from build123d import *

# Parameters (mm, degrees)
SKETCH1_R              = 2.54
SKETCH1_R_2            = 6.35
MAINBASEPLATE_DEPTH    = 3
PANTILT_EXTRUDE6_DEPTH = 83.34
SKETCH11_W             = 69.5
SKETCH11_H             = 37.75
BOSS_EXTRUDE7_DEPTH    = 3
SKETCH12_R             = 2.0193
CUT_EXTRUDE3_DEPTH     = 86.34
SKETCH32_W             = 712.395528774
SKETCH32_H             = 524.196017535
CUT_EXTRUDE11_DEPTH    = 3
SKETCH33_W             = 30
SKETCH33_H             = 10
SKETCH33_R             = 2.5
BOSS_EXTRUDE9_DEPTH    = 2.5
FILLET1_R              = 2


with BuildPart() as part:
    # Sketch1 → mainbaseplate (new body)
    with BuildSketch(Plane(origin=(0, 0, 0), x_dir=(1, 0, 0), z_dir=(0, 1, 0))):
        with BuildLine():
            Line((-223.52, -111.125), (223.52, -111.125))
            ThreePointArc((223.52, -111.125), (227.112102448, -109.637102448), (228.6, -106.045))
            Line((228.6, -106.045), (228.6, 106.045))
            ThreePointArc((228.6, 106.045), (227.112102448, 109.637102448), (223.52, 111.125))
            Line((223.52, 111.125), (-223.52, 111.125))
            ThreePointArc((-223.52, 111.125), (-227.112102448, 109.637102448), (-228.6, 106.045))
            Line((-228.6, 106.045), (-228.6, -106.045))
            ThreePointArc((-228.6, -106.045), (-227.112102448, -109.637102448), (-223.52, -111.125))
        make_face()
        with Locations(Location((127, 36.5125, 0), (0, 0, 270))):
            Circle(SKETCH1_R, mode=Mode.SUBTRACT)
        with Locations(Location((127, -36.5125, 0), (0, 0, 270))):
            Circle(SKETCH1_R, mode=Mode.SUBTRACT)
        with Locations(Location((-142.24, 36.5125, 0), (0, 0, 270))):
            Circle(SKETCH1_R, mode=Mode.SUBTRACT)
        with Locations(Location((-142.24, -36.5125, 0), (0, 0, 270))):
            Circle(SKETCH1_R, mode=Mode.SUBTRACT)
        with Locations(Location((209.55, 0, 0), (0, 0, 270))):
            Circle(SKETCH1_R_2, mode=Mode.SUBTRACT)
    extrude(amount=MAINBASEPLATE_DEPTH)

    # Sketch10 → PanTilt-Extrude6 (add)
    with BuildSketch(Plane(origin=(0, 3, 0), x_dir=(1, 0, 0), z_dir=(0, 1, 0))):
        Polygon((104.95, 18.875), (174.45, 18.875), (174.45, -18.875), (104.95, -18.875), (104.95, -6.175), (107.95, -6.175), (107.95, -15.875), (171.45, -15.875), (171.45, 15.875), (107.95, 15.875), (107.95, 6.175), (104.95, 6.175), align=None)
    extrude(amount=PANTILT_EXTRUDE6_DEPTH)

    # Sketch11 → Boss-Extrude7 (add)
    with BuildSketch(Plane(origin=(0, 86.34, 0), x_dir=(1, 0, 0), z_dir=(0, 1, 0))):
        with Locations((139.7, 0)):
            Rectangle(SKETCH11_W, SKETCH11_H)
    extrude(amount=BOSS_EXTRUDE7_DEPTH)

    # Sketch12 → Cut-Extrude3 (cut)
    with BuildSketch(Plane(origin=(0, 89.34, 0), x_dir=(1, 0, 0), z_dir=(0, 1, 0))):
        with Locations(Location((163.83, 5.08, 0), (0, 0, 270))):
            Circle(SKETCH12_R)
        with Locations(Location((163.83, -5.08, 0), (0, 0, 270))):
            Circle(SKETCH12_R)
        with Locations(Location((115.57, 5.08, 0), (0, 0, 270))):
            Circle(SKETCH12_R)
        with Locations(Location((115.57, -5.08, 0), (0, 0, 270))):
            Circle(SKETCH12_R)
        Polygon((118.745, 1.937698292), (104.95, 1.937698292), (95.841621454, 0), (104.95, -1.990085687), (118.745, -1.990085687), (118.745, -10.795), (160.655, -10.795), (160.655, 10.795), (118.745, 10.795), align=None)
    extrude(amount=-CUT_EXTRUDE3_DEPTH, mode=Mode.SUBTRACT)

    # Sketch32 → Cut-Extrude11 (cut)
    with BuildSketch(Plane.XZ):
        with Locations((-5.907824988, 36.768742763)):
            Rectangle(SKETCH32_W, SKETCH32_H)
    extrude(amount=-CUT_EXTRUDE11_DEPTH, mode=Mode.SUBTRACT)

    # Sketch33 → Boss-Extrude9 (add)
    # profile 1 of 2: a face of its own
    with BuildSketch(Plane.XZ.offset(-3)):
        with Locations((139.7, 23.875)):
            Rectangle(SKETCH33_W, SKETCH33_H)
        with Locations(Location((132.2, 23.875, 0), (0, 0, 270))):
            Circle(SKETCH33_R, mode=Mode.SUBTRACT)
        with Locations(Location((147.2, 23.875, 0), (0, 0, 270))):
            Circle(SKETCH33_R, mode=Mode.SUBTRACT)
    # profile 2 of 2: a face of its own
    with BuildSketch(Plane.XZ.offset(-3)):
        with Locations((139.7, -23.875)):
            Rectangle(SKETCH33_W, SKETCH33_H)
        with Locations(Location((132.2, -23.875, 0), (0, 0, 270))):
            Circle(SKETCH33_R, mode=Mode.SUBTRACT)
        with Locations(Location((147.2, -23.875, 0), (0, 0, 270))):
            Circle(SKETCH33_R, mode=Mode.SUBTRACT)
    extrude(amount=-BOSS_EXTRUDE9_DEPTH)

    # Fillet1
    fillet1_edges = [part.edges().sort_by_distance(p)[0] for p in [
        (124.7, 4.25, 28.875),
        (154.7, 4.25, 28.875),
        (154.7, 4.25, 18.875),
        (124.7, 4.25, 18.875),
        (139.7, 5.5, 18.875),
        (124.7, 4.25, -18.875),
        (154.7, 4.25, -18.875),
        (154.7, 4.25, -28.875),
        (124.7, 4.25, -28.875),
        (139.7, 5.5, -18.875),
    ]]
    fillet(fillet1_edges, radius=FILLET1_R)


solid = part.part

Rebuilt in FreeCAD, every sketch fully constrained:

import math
import FreeCAD as App
import Part
import Sketcher
Q = App.Units.Quantity


def edges_at(feature, points):
    """Names of the edges that pass closest to the given points."""
    edges = feature.Shape.Edges
    near = lambda p: min(range(len(edges)), key=lambda i: edges[i].distToShape(Part.Vertex(*p))[0])
    return sorted({f"Edge{near(p) + 1}" for p in points})


def add_polygon(sketch, points):
    """Adds a closed chain of lines whose ends are joined by coincident constraints."""
    first, n = sketch.GeometryCount, len(points)
    for a, b in zip(points, points[1:] + points[:1]):
        sketch.addGeometry(Part.LineSegment(App.Vector(*a, 0), App.Vector(*b, 0)), False)
    for i in range(n):
        sketch.addConstraint(Sketcher.Constraint("Coincident", first + i, 2, first + (i + 1) % n, 1))

doc = App.newDocument("Part")
params = doc.addObject("Spreadsheet::Sheet", "Params")
for row, (alias, value) in enumerate([
    ("sketch1_diameter", "0.2 in"),
    ("sketch1_diameter2", "0.5 in"),
    ("sketch1_radius", "0.2 in"),
    ("sketch1_width", "17.6 in"),
    ("sketch1_height", "8.35 in"),
    ("pad1_length", "3 mm"),
    ("sketch2_width", "2.5 in"),
    ("sketch2_height", "0.5 in"),
    ("sketch2_height2", "1.25 in"),
    ("pad2_length", "83.34 mm"),
    ("pad3_length", "3 mm"),
    ("sketch4_diameter", "0.159 in"),
    ("sketch4_width", "1.65 in"),
    ("sketch4_height", "0.85 in"),
    ("pocket1_length", "86.34 mm"),
    ("pocket2_length", "3 mm"),
    ("pad4_length", "2.5 mm"),
    ("fillet_radius", "2 mm"),
], start=1):
    params.set(f"A{row}", alias)
    params.set(f"B{row}", "=" + value)
    params.setAlias(f"B{row}", alias)

body = doc.addObject("PartDesign::Body", "Body")

sketch1 = body.newObject("Sketcher::SketchObject", "Sketch")
sketch1.AttachmentSupport = (doc.getObject("XZ_Plane"), [""])
sketch1.MapMode = "FlatFace"
sketch1.addGeometry(Part.LineSegment(App.Vector(-223.5, 111.1, 0), App.Vector(223.5, 111.1, 0)), False)
sketch1.addGeometry(Part.ArcOfCircle(Part.Circle(App.Vector(223.5, 106, 0), App.Vector(0, 0, 1), 5.1), math.radians(0), math.radians(90)), False)
sketch1.addGeometry(Part.LineSegment(App.Vector(228.6, 106, 0), App.Vector(228.6, -106, 0)), False)
sketch1.addGeometry(Part.ArcOfCircle(Part.Circle(App.Vector(223.5, -106, 0), App.Vector(0, 0, 1), 5.1), math.radians(-90), math.radians(0)), False)
sketch1.addGeometry(Part.LineSegment(App.Vector(223.5, -111.1, 0), App.Vector(-223.5, -111.1, 0)), False)
sketch1.addGeometry(Part.ArcOfCircle(Part.Circle(App.Vector(-223.5, -106, 0), App.Vector(0, 0, 1), 5.1), math.radians(-180), math.radians(-90)), False)
sketch1.addGeometry(Part.LineSegment(App.Vector(-228.6, -106, 0), App.Vector(-228.6, 106, 0)), False)
sketch1.addGeometry(Part.ArcOfCircle(Part.Circle(App.Vector(-223.5, 106, 0), App.Vector(0, 0, 1), 5.1), math.radians(90), math.radians(180)), False)
sketch1.addGeometry(Part.Circle(App.Vector(-142.2, 36.5, 0), App.Vector(0, 0, 1), 2.5), False)
sketch1.addGeometry(Part.Circle(App.Vector(127, 36.5, 0), App.Vector(0, 0, 1), 2.5), False)
sketch1.addGeometry(Part.Circle(App.Vector(-142.2, -36.5, 0), App.Vector(0, 0, 1), 2.5), False)
sketch1.addGeometry(Part.Circle(App.Vector(209.6, 0, 0), App.Vector(0, 0, 1), 6.3), False)
sketch1.addGeometry(Part.Circle(App.Vector(127, -36.5, 0), App.Vector(0, 0, 1), 2.5), False)
sketch1.addConstraint(Sketcher.Constraint("Tangent", 0, 2, 1, 2))
sketch1.addConstraint(Sketcher.Constraint("Tangent", 1, 1, 2, 1))
sketch1.addConstraint(Sketcher.Constraint("Tangent", 2, 2, 3, 2))
sketch1.addConstraint(Sketcher.Constraint("Tangent", 3, 1, 4, 1))
sketch1.addConstraint(Sketcher.Constraint("Tangent", 4, 2, 5, 2))
sketch1.addConstraint(Sketcher.Constraint("Tangent", 5, 1, 6, 1))
sketch1.addConstraint(Sketcher.Constraint("Tangent", 6, 2, 7, 2))
sketch1.addConstraint(Sketcher.Constraint("Tangent", 7, 1, 0, 1))
sketch1.addConstraint(Sketcher.Constraint("Horizontal", 0))
sketch1.addConstraint(Sketcher.Constraint("Vertical", 2))
sketch1.addConstraint(Sketcher.Constraint("Horizontal", 4))
sketch1.addConstraint(Sketcher.Constraint("Vertical", 6))
sketch1.addConstraint(Sketcher.Constraint("Equal", 1, 3))
sketch1.addConstraint(Sketcher.Constraint("Equal", 3, 5))
sketch1.addConstraint(Sketcher.Constraint("Equal", 5, 7))
sketch1.addConstraint(Sketcher.Constraint("Equal", 8, 9))
sketch1.addConstraint(Sketcher.Constraint("Equal", 9, 10))
sketch1.addConstraint(Sketcher.Constraint("Equal", 10, 12))
sketch1.addConstraint(Sketcher.Constraint("Symmetric", 1, 3, 5, 3, -1, 1))
sketch1.addConstraint(Sketcher.Constraint("Symmetric", 8, 3, 10, 3, -1))
sketch1.addConstraint(Sketcher.Constraint("Symmetric", 9, 3, 12, 3, -1))
sketch1.addConstraint(Sketcher.Constraint("PointOnObject", 11, 3, -1))
sketch1.addConstraint(Sketcher.Constraint("Horizontal", 8, 3, 9, 3))
sketch1.addConstraint(Sketcher.Constraint("Diameter", 8, Q("0.2 in")))
sketch1.addConstraint(Sketcher.Constraint("Diameter", 11, Q("0.5 in")))
sketch1.addConstraint(Sketcher.Constraint("Radius", 1, Q("0.2 in")))
sketch1.addConstraint(Sketcher.Constraint("DistanceX", 0, 1, 0, 2, Q("17.6 in")))
sketch1.addConstraint(Sketcher.Constraint("DistanceX", -1, 1, 9, 3, Q("5 in")))
sketch1.addConstraint(Sketcher.Constraint("DistanceY", 2, 2, 2, 1, Q("8.35 in")))
sketch1.addConstraint(Sketcher.Constraint("DistanceX", 8, 3, -1, 1, Q("5.6 in")))
sketch1.addConstraint(Sketcher.Constraint("DistanceX", -1, 1, 11, 3, Q("8.25 in")))
sketch1.addConstraint(Sketcher.Constraint("DistanceY", -1, 1, 8, 3, Q("1.4375 in")))
sketch1.setExpression("Constraints[23]", "Params.sketch1_diameter")
sketch1.setExpression("Constraints[24]", "Params.sketch1_diameter2")
sketch1.setExpression("Constraints[25]", "Params.sketch1_radius")
sketch1.setExpression("Constraints[26]", "Params.sketch1_width")
sketch1.setExpression("Constraints[28]", "Params.sketch1_height")
pad1 = body.newObject("PartDesign::Pad", "Pad")
pad1.Profile = sketch1
pad1.setExpression("Length", "Params.pad1_length")
pad1.Reversed = True

sketch2 = body.newObject("Sketcher::SketchObject", "Sketch001")
sketch2.AttachmentSupport = (doc.getObject("XZ_Plane"), [""])
sketch2.MapMode = "FlatFace"
sketch2.AttachmentOffset = App.Placement(App.Vector(0, 0, -3), App.Rotation())
add_polygon(sketch2, [(174.4, -18.9), (105, -18.9), (105, -6.2), (108, -6.2), (108, -15.9), (171.4, -15.9), (171.4, 15.9), (108, 15.9), (108, 6.2), (105, 6.2), (105, 18.9), (174.4, 18.9)])
sketch2.addConstraint(Sketcher.Constraint("Horizontal", 0))
sketch2.addConstraint(Sketcher.Constraint("Vertical", 1))
sketch2.addConstraint(Sketcher.Constraint("Horizontal", 2))
sketch2.addConstraint(Sketcher.Constraint("Vertical", 3))
sketch2.addConstraint(Sketcher.Constraint("Horizontal", 4))
sketch2.addConstraint(Sketcher.Constraint("Vertical", 5))
sketch2.addConstraint(Sketcher.Constraint("Horizontal", 6))
sketch2.addConstraint(Sketcher.Constraint("Vertical", 7))
sketch2.addConstraint(Sketcher.Constraint("Horizontal", 8))
sketch2.addConstraint(Sketcher.Constraint("Vertical", 9))
sketch2.addConstraint(Sketcher.Constraint("Horizontal", 10))
sketch2.addConstraint(Sketcher.Constraint("Vertical", 11))
sketch2.addConstraint(Sketcher.Constraint("Symmetric", 3, 2, 6, 2, -1))
sketch2.addConstraint(Sketcher.Constraint("Symmetric", 1, 2, 8, 2, -1))
sketch2.addConstraint(Sketcher.Constraint("Equal", 1, 9))
sketch2.addConstraint(Sketcher.Constraint("DistanceX", 4, 1, 4, 2, Q("2.5 in")))
sketch2.addConstraint(Sketcher.Constraint("DistanceY", 1, 1, 1, 2, Q("0.5 in")))
sketch2.addConstraint(Sketcher.Constraint("DistanceY", 5, 1, 5, 2, Q("1.25 in")))
sketch2.addConstraint(Sketcher.Constraint("DistanceX", -1, 1, 2, 2, Q("4.25 in")))
sketch2.addConstraint(Sketcher.Constraint("DistanceX", 0, 2, 0, 1, 69.5))
sketch2.addConstraint(Sketcher.Constraint("DistanceX", 2, 1, 2, 2, 3.0))
sketch2.addConstraint(Sketcher.Constraint("DistanceY", 3, 2, 3, 1, 9.7))
sketch2.setExpression("Constraints[27]", "Params.sketch2_width")
sketch2.setExpression("Constraints[28]", "Params.sketch2_height")
sketch2.setExpression("Constraints[29]", "Params.sketch2_height2")
pad2 = body.newObject("PartDesign::Pad", "Pad001")
pad2.Profile = sketch2
pad2.setExpression("Length", "Params.pad2_length")
pad2.Reversed = True

sketch3 = body.newObject("Sketcher::SketchObject", "Sketch002")
sketch3.AttachmentSupport = (doc.getObject("XZ_Plane"), [""])
sketch3.MapMode = "FlatFace"
sketch3.AttachmentOffset = App.Placement(App.Vector(0, 0, -86.34), App.Rotation())
add_polygon(sketch3, [(105, -19), (105, 19), (174, 19), (174, -19)])
sketch3.addConstraint(Sketcher.Constraint("Vertical", 0))
sketch3.addConstraint(Sketcher.Constraint("Horizontal", 1))
sketch3.addConstraint(Sketcher.Constraint("Vertical", 2))
sketch3.addConstraint(Sketcher.Constraint("Horizontal", 3))
sketch3.addConstraint(Sketcher.Constraint("DistanceX", 1, 1, 1, 2, 69.5))
sketch3.addConstraint(Sketcher.Constraint("DistanceY", 0, 1, 0, 2, 37.75))
sketch3.addConstraint(Sketcher.Constraint("DistanceX", -1, 1, 0, 2, 104.95))
sketch3.addConstraint(Sketcher.Constraint("DistanceY", -1, 1, 0, 2, 18.875))
pad3 = body.newObject("PartDesign::Pad", "Pad002")
pad3.Profile = sketch3
pad3.setExpression("Length", "Params.pad3_length")
pad3.Reversed = True

sketch4 = body.newObject("Sketcher::SketchObject", "Sketch003")
sketch4.AttachmentSupport = (doc.getObject("XZ_Plane"), [""])
sketch4.MapMode = "FlatFace"
sketch4.AttachmentOffset = App.Placement(App.Vector(0, 0, -89.34), App.Rotation())
sketch4.addGeometry(Part.Circle(App.Vector(163.8, -5.1, 0), App.Vector(0, 0, 1), 2), False)
sketch4.addGeometry(Part.Circle(App.Vector(163.8, 5.1, 0), App.Vector(0, 0, 1), 2), False)
sketch4.addGeometry(Part.Circle(App.Vector(115.6, -5.1, 0), App.Vector(0, 0, 1), 2), False)
sketch4.addGeometry(Part.Circle(App.Vector(115.6, 5.1, 0), App.Vector(0, 0, 1), 2), False)
add_polygon(sketch4, [(118.7, -1.9), (105, -1.9), (95.8, 0), (105, 2), (118.7, 2), (118.7, 10.8), (160.7, 10.8), (160.7, -10.8), (118.7, -10.8)])
sketch4.addConstraint(Sketcher.Constraint("Horizontal", 4))
sketch4.addConstraint(Sketcher.Constraint("Horizontal", 7))
sketch4.addConstraint(Sketcher.Constraint("Vertical", 8))
sketch4.addConstraint(Sketcher.Constraint("Horizontal", 9))
sketch4.addConstraint(Sketcher.Constraint("Vertical", 10))
sketch4.addConstraint(Sketcher.Constraint("Horizontal", 11))
sketch4.addConstraint(Sketcher.Constraint("Vertical", 12))
sketch4.addConstraint(Sketcher.Constraint("Equal", 0, 1))
sketch4.addConstraint(Sketcher.Constraint("Equal", 1, 2))
sketch4.addConstraint(Sketcher.Constraint("Equal", 2, 3))
sketch4.addConstraint(Sketcher.Constraint("Symmetric", 0, 3, 1, 3, -1))
sketch4.addConstraint(Sketcher.Constraint("Symmetric", 2, 3, 3, 3, -1))
sketch4.addConstraint(Sketcher.Constraint("Symmetric", 8, 2, 11, 2, -1))
sketch4.addConstraint(Sketcher.Constraint("PointOnObject", 5, 2, -1))
sketch4.addConstraint(Sketcher.Constraint("Horizontal", 0, 3, 2, 3))
sketch4.addConstraint(Sketcher.Constraint("Vertical", 4, 2, 6, 2))
sketch4.addConstraint(Sketcher.Constraint("Diameter", 0, Q("0.159 in")))
sketch4.addConstraint(Sketcher.Constraint("DistanceX", 9, 1, 9, 2, Q("1.65 in")))
sketch4.addConstraint(Sketcher.Constraint("DistanceY", 10, 2, 10, 1, Q("0.85 in")))
sketch4.addConstraint(Sketcher.Constraint("DistanceY", 0, 3, -1, 1, Q("0.2 in")))
sketch4.addConstraint(Sketcher.Constraint("DistanceX", 2, 3, 0, 3, Q("1.9 in")))
sketch4.addConstraint(Sketcher.Constraint("DistanceX", -1, 1, 0, 3, Q("6.45 in")))
sketch4.addConstraint(Sketcher.Constraint("DistanceX", -1, 1, 7, 2, Q("4.675 in")))
sketch4.addConstraint(Sketcher.Constraint("DistanceX", 4, 2, 4, 1, 13.795))
sketch4.addConstraint(Sketcher.Constraint("DistanceY", 12, 1, 12, 2, 8.857302))
sketch4.addConstraint(Sketcher.Constraint("Distance", 5, 9.312209))
sketch4.addConstraint(Sketcher.Constraint("Distance", 6, 9.323251))
sketch4.setExpression("Constraints[25]", "Params.sketch4_diameter")
sketch4.setExpression("Constraints[26]", "Params.sketch4_width")
sketch4.setExpression("Constraints[27]", "Params.sketch4_height")
pocket1 = body.newObject("PartDesign::Pocket", "Pocket")
pocket1.Profile = sketch4
pocket1.setExpression("Length", "Params.pocket1_length")
pocket1.Reversed = True

sketch5 = body.newObject("Sketcher::SketchObject", "Sketch004")
sketch5.AttachmentSupport = (doc.getObject("XZ_Plane"), [""])
sketch5.MapMode = "FlatFace"
add_polygon(sketch5, [(-362, 299), (-362, -225), (350, -225), (350, 299)])
sketch5.addConstraint(Sketcher.Constraint("Vertical", 0))
sketch5.addConstraint(Sketcher.Constraint("Horizontal", 1))
sketch5.addConstraint(Sketcher.Constraint("Vertical", 2))
sketch5.addConstraint(Sketcher.Constraint("Horizontal", 3))
sketch5.addConstraint(Sketcher.Constraint("DistanceX", 1, 1, 1, 2, 712.395529))
sketch5.addConstraint(Sketcher.Constraint("DistanceY", 0, 2, 0, 1, 524.196018))
sketch5.addConstraint(Sketcher.Constraint("DistanceX", 0, 2, -1, 1, 362.105589))
sketch5.addConstraint(Sketcher.Constraint("DistanceY", -1, 1, 2, 2, 298.866752))
pocket2 = body.newObject("PartDesign::Pocket", "Pocket001")
pocket2.Profile = sketch5
pocket2.setExpression("Length", "Params.pocket2_length")

sketch6 = body.newObject("Sketcher::SketchObject", "Sketch005")
sketch6.AttachmentSupport = (doc.getObject("XZ_Plane"), [""])
sketch6.MapMode = "FlatFace"
sketch6.AttachmentOffset = App.Placement(App.Vector(0, 0, -3), App.Rotation())
add_polygon(sketch6, [(124.7, 28.9), (124.7, 18.9), (154.7, 18.9), (154.7, 28.9)])
sketch6.addGeometry(Part.Circle(App.Vector(132.2, 23.9, 0), App.Vector(0, 0, 1), 2.5), False)
sketch6.addGeometry(Part.Circle(App.Vector(147.2, 23.9, 0), App.Vector(0, 0, 1), 2.5), False)
add_polygon(sketch6, [(124.7, -18.9), (124.7, -28.9), (154.7, -28.9), (154.7, -18.9)])
sketch6.addGeometry(Part.Circle(App.Vector(132.2, -23.9, 0), App.Vector(0, 0, 1), 2.5), False)
sketch6.addGeometry(Part.Circle(App.Vector(147.2, -23.9, 0), App.Vector(0, 0, 1), 2.5), False)
sketch6.addConstraint(Sketcher.Constraint("Vertical", 0))
sketch6.addConstraint(Sketcher.Constraint("Horizontal", 1))
sketch6.addConstraint(Sketcher.Constraint("Vertical", 2))
sketch6.addConstraint(Sketcher.Constraint("Horizontal", 3))
sketch6.addConstraint(Sketcher.Constraint("Vertical", 6))
sketch6.addConstraint(Sketcher.Constraint("Horizontal", 7))
sketch6.addConstraint(Sketcher.Constraint("Vertical", 8))
sketch6.addConstraint(Sketcher.Constraint("Horizontal", 9))
sketch6.addConstraint(Sketcher.Constraint("Equal", 4, 5))
sketch6.addConstraint(Sketcher.Constraint("Equal", 5, 10))
sketch6.addConstraint(Sketcher.Constraint("Equal", 10, 11))
sketch6.addConstraint(Sketcher.Constraint("Symmetric", 4, 3, 10, 3, -1))
sketch6.addConstraint(Sketcher.Constraint("Symmetric", 5, 3, 11, 3, -1))
sketch6.addConstraint(Sketcher.Constraint("Symmetric", 3, 2, 6, 2, -1))
sketch6.addConstraint(Sketcher.Constraint("Symmetric", 1, 2, 8, 2, -1))
sketch6.addConstraint(Sketcher.Constraint("Horizontal", 4, 3, 5, 3))
sketch6.addConstraint(Sketcher.Constraint("Diameter", 4, 5.0))
sketch6.addConstraint(Sketcher.Constraint("DistanceX", 1, 1, 1, 2, 30.0))
sketch6.addConstraint(Sketcher.Constraint("DistanceY", 0, 2, 0, 1, 10.0))
sketch6.addConstraint(Sketcher.Constraint("DistanceX", -1, 1, 4, 3, 132.2))
sketch6.addConstraint(Sketcher.Constraint("DistanceY", -1, 1, 4, 3, 23.875))
sketch6.addConstraint(Sketcher.Constraint("DistanceX", -1, 1, 5, 3, 147.2))
sketch6.addConstraint(Sketcher.Constraint("DistanceX", -1, 1, 0, 2, 124.7))
sketch6.addConstraint(Sketcher.Constraint("DistanceY", -1, 1, 0, 2, 18.875))
pad4 = body.newObject("PartDesign::Pad", "Pad003")
pad4.Profile = sketch6
pad4.setExpression("Length", "Params.pad4_length")
pad4.Reversed = True
doc.recompute()

fillet = body.newObject("PartDesign::Fillet", "Fillet")
fillet.Base = (pad4, edges_at(pad4, [
    (124.7, 4.25, 28.875),
    (154.7, 4.25, 28.875),
    (154.7, 4.25, 18.875),
    (124.7, 4.25, 18.875),
    (139.7, 5.5, 18.875),
    (124.7, 4.25, -18.875),
    (154.7, 4.25, -18.875),
    (154.7, 4.25, -28.875),
    (124.7, 4.25, -28.875),
    (139.7, 5.5, -18.875),
]))
fillet.setExpression("Radius", "Params.fillet_radius")

doc.recompute()
